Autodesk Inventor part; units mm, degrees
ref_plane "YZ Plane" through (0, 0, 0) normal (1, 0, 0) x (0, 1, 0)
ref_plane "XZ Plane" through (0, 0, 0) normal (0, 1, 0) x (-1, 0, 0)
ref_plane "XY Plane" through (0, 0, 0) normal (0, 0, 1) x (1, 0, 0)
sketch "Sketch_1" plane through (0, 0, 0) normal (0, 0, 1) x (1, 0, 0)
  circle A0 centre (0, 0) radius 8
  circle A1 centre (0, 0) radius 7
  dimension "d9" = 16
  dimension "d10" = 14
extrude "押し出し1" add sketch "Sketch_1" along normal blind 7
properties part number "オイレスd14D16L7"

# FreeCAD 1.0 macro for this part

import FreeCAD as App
import Part
import Sketcher
from FreeCAD import Vector
Q = App.Units.Quantity

doc = App.newDocument("Part")
params = doc.addObject("Spreadsheet::Sheet", "Params")
for row, (alias, value) in enumerate([
    ("sketch1_diameter", "16 mm"),
    ("sketch1_diameter2", "14 mm"),
    ("pad1_length", "7 mm"),
], start=1):
    params.set(f"A{row}", alias)
    params.set(f"B{row}", "=" + value)
    params.setAlias(f"B{row}", alias)

body = doc.addObject("PartDesign::Body", "Body")

# Sketch on XY plane
sketch1 = doc.addObject("Sketcher::SketchObject", "Sketch")
body.addObject(sketch1)
sketch1.AttachmentSupport = (doc.XY_Plane, [""])
sketch1.MapMode = "FlatFace"
sketch1.addGeometry(Part.Circle(Vector(0, 0, 0), Vector(0, 0, 1), 8), False)
sketch1.addGeometry(Part.Circle(Vector(0, 0, 0), Vector(0, 0, 1), 7), False)
sketch1.addConstraint(Sketcher.Constraint("Coincident", 0, 3, -1, 1))
sketch1.addConstraint(Sketcher.Constraint("Coincident", 1, 3, -1, 1))
sketch1.addConstraint(Sketcher.Constraint("Diameter", 0, Q("16 mm")))
sketch1.addConstraint(Sketcher.Constraint("Diameter", 1, Q("14 mm")))
sketch1.setExpression("Constraints[2]", "Params.sketch1_diameter")
sketch1.setExpression("Constraints[3]", "Params.sketch1_diameter2")
pad1 = doc.addObject("PartDesign::Pad", "Pad")
body.addObject(pad1)
pad1.Profile = sketch1
pad1.setExpression("Length", "Params.pad1_length")

doc.recompute()
